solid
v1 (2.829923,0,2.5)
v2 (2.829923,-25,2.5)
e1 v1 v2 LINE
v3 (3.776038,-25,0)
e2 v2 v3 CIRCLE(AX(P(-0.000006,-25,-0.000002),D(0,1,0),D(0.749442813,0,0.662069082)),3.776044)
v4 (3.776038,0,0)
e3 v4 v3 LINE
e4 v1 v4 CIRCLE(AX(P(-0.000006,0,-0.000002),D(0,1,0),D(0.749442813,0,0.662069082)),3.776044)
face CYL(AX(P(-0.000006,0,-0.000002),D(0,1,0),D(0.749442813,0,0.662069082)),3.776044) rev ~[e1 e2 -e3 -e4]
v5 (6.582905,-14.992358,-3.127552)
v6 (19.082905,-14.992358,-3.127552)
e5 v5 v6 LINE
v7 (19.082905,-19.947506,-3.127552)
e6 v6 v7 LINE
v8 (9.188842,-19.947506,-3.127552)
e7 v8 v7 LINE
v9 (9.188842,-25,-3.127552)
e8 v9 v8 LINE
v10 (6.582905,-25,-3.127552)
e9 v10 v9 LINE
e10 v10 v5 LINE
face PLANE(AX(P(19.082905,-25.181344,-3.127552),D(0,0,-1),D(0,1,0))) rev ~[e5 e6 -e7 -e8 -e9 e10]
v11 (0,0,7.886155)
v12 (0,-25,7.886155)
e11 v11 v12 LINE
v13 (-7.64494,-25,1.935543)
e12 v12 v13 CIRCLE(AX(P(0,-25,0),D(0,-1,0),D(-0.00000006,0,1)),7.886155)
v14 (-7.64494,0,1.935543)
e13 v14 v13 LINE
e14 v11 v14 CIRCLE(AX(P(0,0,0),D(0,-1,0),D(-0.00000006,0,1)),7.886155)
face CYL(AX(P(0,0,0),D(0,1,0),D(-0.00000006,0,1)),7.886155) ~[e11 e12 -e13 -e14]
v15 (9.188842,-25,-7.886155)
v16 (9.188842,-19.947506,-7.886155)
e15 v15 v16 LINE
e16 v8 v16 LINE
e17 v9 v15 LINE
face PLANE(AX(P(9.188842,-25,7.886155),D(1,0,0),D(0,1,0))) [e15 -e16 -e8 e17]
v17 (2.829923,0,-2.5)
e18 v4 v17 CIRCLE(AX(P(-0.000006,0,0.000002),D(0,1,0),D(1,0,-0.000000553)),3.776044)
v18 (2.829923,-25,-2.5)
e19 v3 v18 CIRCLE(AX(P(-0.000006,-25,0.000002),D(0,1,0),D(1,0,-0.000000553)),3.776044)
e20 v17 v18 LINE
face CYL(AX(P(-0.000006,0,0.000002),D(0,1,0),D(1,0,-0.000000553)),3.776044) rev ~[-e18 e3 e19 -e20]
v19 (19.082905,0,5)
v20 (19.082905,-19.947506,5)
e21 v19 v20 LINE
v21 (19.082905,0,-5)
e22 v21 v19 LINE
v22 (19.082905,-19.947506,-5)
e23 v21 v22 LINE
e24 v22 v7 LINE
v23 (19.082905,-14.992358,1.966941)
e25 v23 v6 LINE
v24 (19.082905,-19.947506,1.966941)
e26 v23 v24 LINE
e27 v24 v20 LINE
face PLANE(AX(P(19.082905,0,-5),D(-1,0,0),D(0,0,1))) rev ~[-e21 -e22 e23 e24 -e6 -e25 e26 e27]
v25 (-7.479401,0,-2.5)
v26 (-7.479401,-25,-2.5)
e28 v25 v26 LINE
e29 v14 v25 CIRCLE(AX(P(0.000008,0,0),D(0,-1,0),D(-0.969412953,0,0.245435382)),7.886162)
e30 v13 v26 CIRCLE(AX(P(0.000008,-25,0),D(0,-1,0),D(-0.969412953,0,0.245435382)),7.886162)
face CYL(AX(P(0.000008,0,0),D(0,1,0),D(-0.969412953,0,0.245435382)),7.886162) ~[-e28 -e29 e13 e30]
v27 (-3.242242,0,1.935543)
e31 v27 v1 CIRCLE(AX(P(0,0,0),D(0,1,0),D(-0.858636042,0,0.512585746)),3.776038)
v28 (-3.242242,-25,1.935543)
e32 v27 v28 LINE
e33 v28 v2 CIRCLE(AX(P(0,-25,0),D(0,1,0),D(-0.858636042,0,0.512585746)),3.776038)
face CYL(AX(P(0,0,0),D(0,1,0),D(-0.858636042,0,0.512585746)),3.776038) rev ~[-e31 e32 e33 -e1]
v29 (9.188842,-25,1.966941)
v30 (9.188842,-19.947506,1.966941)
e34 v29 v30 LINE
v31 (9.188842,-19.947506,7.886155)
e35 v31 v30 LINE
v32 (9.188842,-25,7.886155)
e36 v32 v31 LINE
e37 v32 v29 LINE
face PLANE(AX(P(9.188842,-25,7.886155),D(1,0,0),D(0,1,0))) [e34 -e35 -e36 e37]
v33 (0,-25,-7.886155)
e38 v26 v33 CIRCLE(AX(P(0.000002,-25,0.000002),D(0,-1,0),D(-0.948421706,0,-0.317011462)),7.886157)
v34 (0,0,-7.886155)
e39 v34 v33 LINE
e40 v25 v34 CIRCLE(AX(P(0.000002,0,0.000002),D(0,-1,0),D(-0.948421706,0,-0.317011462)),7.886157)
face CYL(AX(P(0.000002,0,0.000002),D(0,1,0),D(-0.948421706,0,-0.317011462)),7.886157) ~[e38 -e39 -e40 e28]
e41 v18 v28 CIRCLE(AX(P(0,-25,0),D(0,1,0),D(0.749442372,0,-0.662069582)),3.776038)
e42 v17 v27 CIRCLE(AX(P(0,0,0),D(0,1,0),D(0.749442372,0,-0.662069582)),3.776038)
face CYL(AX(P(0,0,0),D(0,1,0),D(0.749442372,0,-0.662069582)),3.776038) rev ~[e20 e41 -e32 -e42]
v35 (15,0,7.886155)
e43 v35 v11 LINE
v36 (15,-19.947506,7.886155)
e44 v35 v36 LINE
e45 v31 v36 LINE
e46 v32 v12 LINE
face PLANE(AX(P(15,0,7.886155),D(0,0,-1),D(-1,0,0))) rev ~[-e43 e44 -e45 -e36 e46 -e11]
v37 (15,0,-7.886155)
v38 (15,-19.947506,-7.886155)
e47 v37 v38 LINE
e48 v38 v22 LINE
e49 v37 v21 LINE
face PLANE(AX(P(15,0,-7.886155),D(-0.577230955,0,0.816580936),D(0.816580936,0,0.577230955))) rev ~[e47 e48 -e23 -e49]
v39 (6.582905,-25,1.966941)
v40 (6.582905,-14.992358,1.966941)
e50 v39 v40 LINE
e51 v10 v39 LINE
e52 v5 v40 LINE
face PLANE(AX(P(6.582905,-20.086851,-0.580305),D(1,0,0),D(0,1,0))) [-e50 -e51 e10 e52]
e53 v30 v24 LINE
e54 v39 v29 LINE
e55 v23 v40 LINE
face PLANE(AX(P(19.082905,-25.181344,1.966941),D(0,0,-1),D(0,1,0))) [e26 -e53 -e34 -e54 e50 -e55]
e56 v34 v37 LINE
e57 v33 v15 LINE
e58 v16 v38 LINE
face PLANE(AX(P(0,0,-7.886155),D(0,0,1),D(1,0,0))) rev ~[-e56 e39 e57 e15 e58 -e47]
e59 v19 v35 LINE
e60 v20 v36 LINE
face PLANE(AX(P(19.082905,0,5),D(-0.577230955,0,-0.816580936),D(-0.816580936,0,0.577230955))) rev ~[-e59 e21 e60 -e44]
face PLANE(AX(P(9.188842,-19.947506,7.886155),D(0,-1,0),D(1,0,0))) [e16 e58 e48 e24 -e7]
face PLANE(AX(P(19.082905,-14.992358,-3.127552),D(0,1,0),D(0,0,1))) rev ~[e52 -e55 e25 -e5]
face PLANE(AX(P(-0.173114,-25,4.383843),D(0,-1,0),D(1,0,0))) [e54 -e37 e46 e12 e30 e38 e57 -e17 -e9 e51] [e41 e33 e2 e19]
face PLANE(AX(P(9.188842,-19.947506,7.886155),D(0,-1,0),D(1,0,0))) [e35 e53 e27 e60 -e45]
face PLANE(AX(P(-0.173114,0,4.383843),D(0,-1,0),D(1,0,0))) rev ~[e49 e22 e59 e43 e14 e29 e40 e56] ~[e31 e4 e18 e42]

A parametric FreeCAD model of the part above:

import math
import FreeCAD as App
import Part
import Sketcher


def add_polygon(sketch, points):
    """Adds a closed chain of lines whose ends are joined by coincident constraints."""
    first, n = sketch.GeometryCount, len(points)
    for a, b in zip(points, points[1:] + points[:1]):
        sketch.addGeometry(Part.LineSegment(App.Vector(*a, 0), App.Vector(*b, 0)), False)
    for i in range(n):
        sketch.addConstraint(Sketcher.Constraint("Coincident", first + i, 2, first + (i + 1) % n, 1))

doc = App.newDocument("Part")
body = doc.addObject("PartDesign::Body", "Body")

# Sketch on XZ plane
sketch1 = body.newObject("Sketcher::SketchObject", "Sketch")
sketch1.AttachmentSupport = (doc.getObject("XZ_Plane"), [""])
sketch1.MapMode = "FlatFace"
sketch1.addGeometry([
    Part.ArcOfCircle(Part.Circle(App.Vector(0, 0, 0), App.Vector(0, 0, 1), 7.9), math.radians(90), math.radians(166)),  # 0
    Part.ArcOfCircle(Part.Circle(App.Vector(0, 0, 0), App.Vector(0, 0, 1), 7.9), math.radians(166), math.radians(198)),  # 1
    Part.ArcOfCircle(Part.Circle(App.Vector(0, 0, 0), App.Vector(0, 0, 1), 7.9), math.radians(-162), math.radians(-90)),  # 2
    Part.LineSegment(App.Vector(0, -7.9, 0), App.Vector(15, -7.9, 0)),  # 3
    Part.LineSegment(App.Vector(15, -7.9, 0), App.Vector(19.1, -5, 0)),  # 4
    Part.LineSegment(App.Vector(19.1, -5, 0), App.Vector(19.1, 5, 0)),  # 5
    Part.LineSegment(App.Vector(19.1, 5, 0), App.Vector(15, 7.9, 0)),  # 6
    Part.LineSegment(App.Vector(15, 7.9, 0), App.Vector(0, 7.9, 0)),  # 7
    Part.ArcOfCircle(Part.Circle(App.Vector(0, 0, 0), App.Vector(0, 0, 1), 3.8), math.radians(41), math.radians(149)),  # 8
    Part.ArcOfCircle(Part.Circle(App.Vector(0, 0, 0), App.Vector(0, 0, 1), 3.8), math.radians(0), math.radians(41)),  # 9
    Part.ArcOfCircle(Part.Circle(App.Vector(0, 0, 0), App.Vector(0, 0, 1), 3.8), math.radians(-41), math.radians(0)),  # 10
    Part.ArcOfCircle(Part.Circle(App.Vector(0, 0, 0), App.Vector(0, 0, 1), 3.8), math.radians(149), math.radians(319)),  # 11
], False)
sketch1.addConstraint([
    Sketcher.Constraint("Tangent", 0, 2, 1, 1),
    Sketcher.Constraint("Tangent", 1, 2, 2, 1),
    Sketcher.Constraint("Tangent", 2, 2, 3, 1),
    Sketcher.Constraint("Coincident", 3, 2, 4, 1),
    Sketcher.Constraint("Coincident", 4, 2, 5, 1),
    Sketcher.Constraint("Coincident", 5, 2, 6, 1),
    Sketcher.Constraint("Coincident", 6, 2, 7, 1),
    Sketcher.Constraint("Tangent", 7, 2, 0, 1),
    Sketcher.Constraint("Tangent", 8, 1, 9, 2),
    Sketcher.Constraint("Tangent", 9, 1, 10, 2),
    Sketcher.Constraint("Tangent", 10, 1, 11, 2),
    Sketcher.Constraint("Tangent", 11, 1, 8, 2),
    Sketcher.Constraint("Horizontal", 3),
    Sketcher.Constraint("Vertical", 5),
    Sketcher.Constraint("Horizontal", 7),
    Sketcher.Constraint("Coincident", 0, 3, -1, 1),
    Sketcher.Constraint("Coincident", 2, 3, -1, 1),
    Sketcher.Constraint("Coincident", 8, 3, -1, 1),
    Sketcher.Constraint("Equal", 9, 10),
    Sketcher.Constraint("PointOnObject", 9, 1, -1),
    Sketcher.Constraint("Horizontal", 1, 2, 10, 1),
    Sketcher.Constraint("Horizontal", 0, 2, 11, 1),
    Sketcher.Constraint("Vertical", 3, 2, 6, 2),
    Sketcher.Constraint("Vertical", 8, 1, 10, 1),
    Sketcher.Constraint("Equal", 4, 6),
    Sketcher.Constraint("DistanceX", 3, 1, 3, 2, 15.0),
    Sketcher.Constraint("DistanceY", 5, 1, 5, 2, 10.0),
    Sketcher.Constraint("Distance", 4, 5.0),
    Sketcher.Constraint("DistanceY", 1, 2, -1, 1, 2.5),
    Sketcher.Constraint("Radius", 8, 3.776038),
    Sketcher.Constraint("Radius", 0, 7.886155),
    Sketcher.Constraint("DistanceX", 0, 2, -1, 1, 7.64494),
])
pad1 = body.newObject("PartDesign::Pad", "Pad")
pad1.Profile = sketch1
pad1.Length = 25

# Sketch on XY plane
sketch2 = body.newObject("Sketcher::SketchObject", "Sketch001")
sketch2.AttachmentSupport = (doc.getObject("XY_Plane"), [""])
sketch2.MapMode = "FlatFace"
sketch2.AttachmentOffset = App.Placement(App.Vector(0, 0, 7.886155), App.Rotation())
add_polygon(sketch2, [(9, -20), (9, -25), (19, -25), (19, -20)])  # lines 0-3
sketch2.addConstraint([
    Sketcher.Constraint("Vertical", 0),
    Sketcher.Constraint("Horizontal", 1),
    Sketcher.Constraint("Vertical", 2),
    Sketcher.Constraint("Horizontal", 3),
    Sketcher.Constraint("DistanceY", 0, 2, -1, 1, 25.0),
    Sketcher.Constraint("DistanceX", 1, 1, 1, 2, 9.942237),
    Sketcher.Constraint("DistanceY", 0, 2, 0, 1, 5.052494),
    Sketcher.Constraint("DistanceX", -1, 1, 1, 2, 19.131079),
])
pocket1 = body.newObject("PartDesign::Pocket", "Pocket")
pocket1.Profile = sketch2
pocket1.Type = "ThroughAll"

# Sketch on YZ plane
sketch3 = body.newObject("Sketcher::SketchObject", "Sketch002")
sketch3.AttachmentSupport = (doc.getObject("YZ_Plane"), [""])
sketch3.MapMode = "FlatFace"
sketch3.AttachmentOffset = App.Placement(App.Vector(0, 0, 19.082905), App.Rotation())
add_polygon(sketch3, [(-25, 2), (-25, -3), (-15, -3), (-15, 2)])  # lines 0-3
sketch3.addConstraint([
    Sketcher.Constraint("Vertical", 0),
    Sketcher.Constraint("Horizontal", 1),
    Sketcher.Constraint("Vertical", 2),
    Sketcher.Constraint("Horizontal", 3),
    Sketcher.Constraint("DistanceX", 1, 1, 1, 2, 10.188986),
    Sketcher.Constraint("DistanceY", 0, 2, 0, 1, 5.094493),
    Sketcher.Constraint("DistanceY", 0, 2, -1, 1, 3.127552),
    Sketcher.Constraint("DistanceX", 0, 2, -1, 1, 25.181344),
])
pocket2 = body.newObject("PartDesign::Pocket", "Pocket001")
pocket2.Profile = sketch3
pocket2.Length = 25
pocket2.Midplane = True

doc.recompute()
